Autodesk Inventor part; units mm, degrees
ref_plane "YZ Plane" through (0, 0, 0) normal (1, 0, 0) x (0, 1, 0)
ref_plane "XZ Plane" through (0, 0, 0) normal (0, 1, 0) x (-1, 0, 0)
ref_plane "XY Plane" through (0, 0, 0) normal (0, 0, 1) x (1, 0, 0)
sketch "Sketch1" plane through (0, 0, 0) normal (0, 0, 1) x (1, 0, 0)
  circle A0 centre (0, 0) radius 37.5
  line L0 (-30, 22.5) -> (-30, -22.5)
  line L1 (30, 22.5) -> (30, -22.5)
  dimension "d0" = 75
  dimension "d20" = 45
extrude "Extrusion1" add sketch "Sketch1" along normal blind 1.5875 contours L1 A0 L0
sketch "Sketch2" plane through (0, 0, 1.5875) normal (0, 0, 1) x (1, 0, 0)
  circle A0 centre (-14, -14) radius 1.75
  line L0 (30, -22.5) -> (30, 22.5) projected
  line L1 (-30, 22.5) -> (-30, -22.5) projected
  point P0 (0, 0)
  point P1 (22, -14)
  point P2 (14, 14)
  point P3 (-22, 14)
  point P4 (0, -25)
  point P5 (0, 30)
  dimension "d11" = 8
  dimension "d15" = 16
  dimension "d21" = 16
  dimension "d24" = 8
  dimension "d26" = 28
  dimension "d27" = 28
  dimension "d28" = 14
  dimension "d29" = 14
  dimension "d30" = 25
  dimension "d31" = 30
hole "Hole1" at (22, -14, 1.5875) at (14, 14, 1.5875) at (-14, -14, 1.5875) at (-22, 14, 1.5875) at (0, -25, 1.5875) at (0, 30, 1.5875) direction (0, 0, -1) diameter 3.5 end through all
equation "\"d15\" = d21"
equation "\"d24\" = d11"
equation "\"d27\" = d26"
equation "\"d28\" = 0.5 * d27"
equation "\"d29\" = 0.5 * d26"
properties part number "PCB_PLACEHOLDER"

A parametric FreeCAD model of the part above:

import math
import FreeCAD as App
import Part
import Sketcher

V = App.Vector
Q = App.Units.Quantity

doc = App.newDocument("Part")
body = doc.addObject("PartDesign::Body", "Body")

sketch1 = body.newObject("Sketcher::SketchObject", "Sketch")
sketch1.AttachmentSupport = (doc.getObject("XY_Plane"), [""])
sketch1.MapMode = "FlatFace"
sketch1.addGeometry([
    Part.LineSegment(V(30, -22, 0), V(30, 22, 0)),
    Part.ArcOfCircle(Part.Circle(V(0, 0, 0), V(0, 0, 1), 38), math.radians(37), math.radians(143)),
    Part.LineSegment(V(-30, 22, 0), V(-30, -22, 0)),
    Part.ArcOfCircle(Part.Circle(V(0, 0, 0), V(0, 0, 1), 38), math.radians(-143), math.radians(-37)),
], False)
sketch1.addConstraint([
    Sketcher.Constraint("Coincident", 0, 2, 1, 1),
    Sketcher.Constraint("Coincident", 1, 2, 2, 1),
    Sketcher.Constraint("Coincident", 2, 2, 3, 1),
    Sketcher.Constraint("Coincident", 3, 2, 0, 1),
    Sketcher.Constraint("Vertical", 0),
    Sketcher.Constraint("Vertical", 2),
    Sketcher.Constraint("Coincident", 1, 3, -1, 1),
    Sketcher.Constraint("Coincident", 3, 3, -1, 1),
    Sketcher.Constraint("Equal", 1, 3),
    Sketcher.Constraint("Horizontal", 0, 2, 1, 2),
    Sketcher.Constraint("Radius", 1, Q("37.5 mm")),
    Sketcher.Constraint("DistanceY", 0, 1, 0, 2, Q("45 mm")),
])
pad1 = body.newObject("PartDesign::Pad", "Pad")
pad1.Profile = sketch1
pad1.Length = 1.5875

sketch2 = body.newObject("Sketcher::SketchObject", "Sketch001")
sketch2.AttachmentSupport = (doc.getObject("XY_Plane"), [""])
sketch2.MapMode = "FlatFace"
sketch2.AttachmentOffset = App.Placement(V(0, 0, 1.5875), App.Rotation())
sketch2.addGeometry([
    Part.Circle(V(22, -14, 0), V(0, 0, 1), 1.8),
    Part.Circle(V(14, 14, 0), V(0, 0, 1), 1.8),
    Part.Circle(V(-14, -14, 0), V(0, 0, 1), 1.8),
    Part.Circle(V(-22, 14, 0), V(0, 0, 1), 1.8),
    Part.Circle(V(0, -25, 0), V(0, 0, 1), 1.8),
    Part.Circle(V(0, 30, 0), V(0, 0, 1), 1.8),
], False)
sketch2.addConstraint([
    Sketcher.Constraint("Equal", 0, 1),
    Sketcher.Constraint("Equal", 1, 2),
    Sketcher.Constraint("Equal", 2, 3),
    Sketcher.Constraint("Equal", 3, 4),
    Sketcher.Constraint("Equal", 4, 5),
    Sketcher.Constraint("Symmetric", 1, 3, 2, 3, -1, 1),
    Sketcher.Constraint("Symmetric", 0, 3, 3, 3, -1, 1),
    Sketcher.Constraint("PointOnObject", 4, 3, -2),
    Sketcher.Constraint("PointOnObject", 5, 3, -2),
    Sketcher.Constraint("Horizontal", 0, 3, 2, 3),
    Sketcher.Constraint("Diameter", 0, Q("3.5 mm")),
    Sketcher.Constraint("DistanceX", -1, 1, 0, 3, Q("22 mm")),
    Sketcher.Constraint("DistanceY", 0, 3, -1, 1, Q("14 mm")),
    Sketcher.Constraint("DistanceX", -1, 1, 1, 3, Q("14 mm")),
    Sketcher.Constraint("DistanceY", 4, 3, -1, 1, Q("25 mm")),
    Sketcher.Constraint("DistanceY", -1, 1, 5, 3, Q("30 mm")),
])
doc.recompute()
hole = body.newObject("PartDesign::Hole", "Hole")
hole.Profile = sketch2
hole.ThreadType = "None"
hole.Diameter = 3.5
hole.DepthType = "ThroughAll"

doc.recompute()
